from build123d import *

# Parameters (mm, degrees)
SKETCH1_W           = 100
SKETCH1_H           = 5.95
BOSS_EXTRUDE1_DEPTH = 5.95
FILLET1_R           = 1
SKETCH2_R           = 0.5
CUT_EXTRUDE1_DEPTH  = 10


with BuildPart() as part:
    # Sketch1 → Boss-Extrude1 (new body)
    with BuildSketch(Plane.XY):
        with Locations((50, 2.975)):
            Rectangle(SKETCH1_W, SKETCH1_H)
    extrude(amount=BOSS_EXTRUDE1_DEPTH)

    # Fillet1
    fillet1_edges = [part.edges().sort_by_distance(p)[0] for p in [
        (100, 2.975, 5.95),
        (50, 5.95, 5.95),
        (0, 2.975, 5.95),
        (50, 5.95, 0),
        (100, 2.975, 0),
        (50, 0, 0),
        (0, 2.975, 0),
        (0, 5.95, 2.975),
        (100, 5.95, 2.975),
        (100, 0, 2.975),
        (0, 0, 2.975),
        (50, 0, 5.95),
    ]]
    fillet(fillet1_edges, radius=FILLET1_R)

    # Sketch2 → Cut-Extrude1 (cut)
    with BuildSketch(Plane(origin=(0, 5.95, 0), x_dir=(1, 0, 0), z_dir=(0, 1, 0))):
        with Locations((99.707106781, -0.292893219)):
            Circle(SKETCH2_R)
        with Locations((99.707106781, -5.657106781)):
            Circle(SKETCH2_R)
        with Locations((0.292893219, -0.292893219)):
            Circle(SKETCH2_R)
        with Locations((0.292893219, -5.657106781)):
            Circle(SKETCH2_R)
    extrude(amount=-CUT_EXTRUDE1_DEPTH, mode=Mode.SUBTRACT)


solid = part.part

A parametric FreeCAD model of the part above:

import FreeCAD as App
import Part
import Sketcher
from FreeCAD import Vector
Q = App.Units.Quantity

doc = App.newDocument("Part")
params = doc.addObject("Spreadsheet::Sheet", "Params")
for row, (alias, value) in enumerate([
    ("sketch1_width", "100 mm"),
    ("sketch1_height", "5.95 mm"),
    ("pad1_length", "5.95 mm"),
    ("fillet_radius", "1 mm"),
    ("sketch2_diameter", "1 mm"),
    ("pocket1_length", "10 mm"),
], start=1):
    params.set(f"A{row}", alias)
    params.set(f"B{row}", "=" + value)
    params.setAlias(f"B{row}", alias)

body = doc.addObject("PartDesign::Body", "Body")

sketch1 = doc.addObject("Sketcher::SketchObject", "Sketch")
body.addObject(sketch1)
sketch1.AttachmentSupport = (doc.XY_Plane, [""])
sketch1.MapMode = "FlatFace"
sketch1.addGeometry([
    Part.LineSegment(Vector(0, 6, 0), Vector(0, 0, 0)),
    Part.LineSegment(Vector(0, 0, 0), Vector(100, 0, 0)),
    Part.LineSegment(Vector(100, 0, 0), Vector(100, 6, 0)),
    Part.LineSegment(Vector(100, 6, 0), Vector(0, 6, 0)),
], False)
sketch1.addConstraint([
    Sketcher.Constraint("Coincident", 0, 2, 1, 1),
    Sketcher.Constraint("Coincident", 1, 2, 2, 1),
    Sketcher.Constraint("Coincident", 2, 2, 3, 1),
    Sketcher.Constraint("Coincident", 3, 2, 0, 1),
    Sketcher.Constraint("Vertical", 0),
    Sketcher.Constraint("Horizontal", 1),
    Sketcher.Constraint("Vertical", 2),
    Sketcher.Constraint("Horizontal", 3),
    Sketcher.Constraint("Coincident", 0, 2, -1, 1),
    Sketcher.Constraint("DistanceX", 1, 1, 1, 2, Q("100 mm")),
    Sketcher.Constraint("DistanceY", 0, 2, 0, 1, Q("5.95 mm")),
])
sketch1.setExpression("Constraints[9]", "Params.sketch1_width")
sketch1.setExpression("Constraints[10]", "Params.sketch1_height")
pad1 = doc.addObject("PartDesign::Pad", "Pad")
body.addObject(pad1)
pad1.Profile = sketch1
pad1.setExpression("Length", "Params.pad1_length")
doc.recompute()

fillet = doc.addObject("PartDesign::Fillet", "Fillet")
body.addObject(fillet)
fillet.Base = (pad1, ["Edge1"])
fillet.UseAllEdges = True
fillet.setExpression("Radius", "Params.fillet_radius")

sketch2 = doc.addObject("Sketcher::SketchObject", "Sketch001")
body.addObject(sketch2)
sketch2.AttachmentSupport = (doc.XZ_Plane, [""])
sketch2.MapMode = "FlatFace"
sketch2.AttachmentOffset = App.Placement(Vector(0, 0, -5.95), App.Rotation())
sketch2.addGeometry([
    Part.Circle(Vector(99.7, 0.3, 0), Vector(0, 0, 1), 0.5),
    Part.Circle(Vector(99.7, 5.7, 0), Vector(0, 0, 1), 0.5),
    Part.Circle(Vector(0.3, 0.3, 0), Vector(0, 0, 1), 0.5),
    Part.Circle(Vector(0.3, 5.7, 0), Vector(0, 0, 1), 0.5),
], False)
sketch2.addConstraint([
    Sketcher.Constraint("Equal", 0, 1),
    Sketcher.Constraint("Equal", 1, 2),
    Sketcher.Constraint("Equal", 2, 3),
    Sketcher.Constraint("Horizontal", 0, 3, 2, 3),
    Sketcher.Constraint("Horizontal", 1, 3, 3, 3),
    Sketcher.Constraint("Vertical", 0, 3, 1, 3),
    Sketcher.Constraint("Vertical", 2, 3, 3, 3),
    Sketcher.Constraint("Diameter", 0, Q("1 mm")),
    Sketcher.Constraint("DistanceX", -1, 1, 0, 3, Q("99.707107 mm")),
    Sketcher.Constraint("DistanceY", -1, 1, 0, 3, Q("0.292893 mm")),
    Sketcher.Constraint("DistanceY", -1, 1, 1, 3, Q("5.657107 mm")),
    Sketcher.Constraint("DistanceX", -1, 1, 2, 3, Q("0.292893 mm")),
])
sketch2.setExpression("Constraints[7]", "Params.sketch2_diameter")
pocket1 = doc.addObject("PartDesign::Pocket", "Pocket")
body.addObject(pocket1)
pocket1.Profile = sketch2
pocket1.setExpression("Length", "Params.pocket1_length")
pocket1.Reversed = True

doc.recompute()
